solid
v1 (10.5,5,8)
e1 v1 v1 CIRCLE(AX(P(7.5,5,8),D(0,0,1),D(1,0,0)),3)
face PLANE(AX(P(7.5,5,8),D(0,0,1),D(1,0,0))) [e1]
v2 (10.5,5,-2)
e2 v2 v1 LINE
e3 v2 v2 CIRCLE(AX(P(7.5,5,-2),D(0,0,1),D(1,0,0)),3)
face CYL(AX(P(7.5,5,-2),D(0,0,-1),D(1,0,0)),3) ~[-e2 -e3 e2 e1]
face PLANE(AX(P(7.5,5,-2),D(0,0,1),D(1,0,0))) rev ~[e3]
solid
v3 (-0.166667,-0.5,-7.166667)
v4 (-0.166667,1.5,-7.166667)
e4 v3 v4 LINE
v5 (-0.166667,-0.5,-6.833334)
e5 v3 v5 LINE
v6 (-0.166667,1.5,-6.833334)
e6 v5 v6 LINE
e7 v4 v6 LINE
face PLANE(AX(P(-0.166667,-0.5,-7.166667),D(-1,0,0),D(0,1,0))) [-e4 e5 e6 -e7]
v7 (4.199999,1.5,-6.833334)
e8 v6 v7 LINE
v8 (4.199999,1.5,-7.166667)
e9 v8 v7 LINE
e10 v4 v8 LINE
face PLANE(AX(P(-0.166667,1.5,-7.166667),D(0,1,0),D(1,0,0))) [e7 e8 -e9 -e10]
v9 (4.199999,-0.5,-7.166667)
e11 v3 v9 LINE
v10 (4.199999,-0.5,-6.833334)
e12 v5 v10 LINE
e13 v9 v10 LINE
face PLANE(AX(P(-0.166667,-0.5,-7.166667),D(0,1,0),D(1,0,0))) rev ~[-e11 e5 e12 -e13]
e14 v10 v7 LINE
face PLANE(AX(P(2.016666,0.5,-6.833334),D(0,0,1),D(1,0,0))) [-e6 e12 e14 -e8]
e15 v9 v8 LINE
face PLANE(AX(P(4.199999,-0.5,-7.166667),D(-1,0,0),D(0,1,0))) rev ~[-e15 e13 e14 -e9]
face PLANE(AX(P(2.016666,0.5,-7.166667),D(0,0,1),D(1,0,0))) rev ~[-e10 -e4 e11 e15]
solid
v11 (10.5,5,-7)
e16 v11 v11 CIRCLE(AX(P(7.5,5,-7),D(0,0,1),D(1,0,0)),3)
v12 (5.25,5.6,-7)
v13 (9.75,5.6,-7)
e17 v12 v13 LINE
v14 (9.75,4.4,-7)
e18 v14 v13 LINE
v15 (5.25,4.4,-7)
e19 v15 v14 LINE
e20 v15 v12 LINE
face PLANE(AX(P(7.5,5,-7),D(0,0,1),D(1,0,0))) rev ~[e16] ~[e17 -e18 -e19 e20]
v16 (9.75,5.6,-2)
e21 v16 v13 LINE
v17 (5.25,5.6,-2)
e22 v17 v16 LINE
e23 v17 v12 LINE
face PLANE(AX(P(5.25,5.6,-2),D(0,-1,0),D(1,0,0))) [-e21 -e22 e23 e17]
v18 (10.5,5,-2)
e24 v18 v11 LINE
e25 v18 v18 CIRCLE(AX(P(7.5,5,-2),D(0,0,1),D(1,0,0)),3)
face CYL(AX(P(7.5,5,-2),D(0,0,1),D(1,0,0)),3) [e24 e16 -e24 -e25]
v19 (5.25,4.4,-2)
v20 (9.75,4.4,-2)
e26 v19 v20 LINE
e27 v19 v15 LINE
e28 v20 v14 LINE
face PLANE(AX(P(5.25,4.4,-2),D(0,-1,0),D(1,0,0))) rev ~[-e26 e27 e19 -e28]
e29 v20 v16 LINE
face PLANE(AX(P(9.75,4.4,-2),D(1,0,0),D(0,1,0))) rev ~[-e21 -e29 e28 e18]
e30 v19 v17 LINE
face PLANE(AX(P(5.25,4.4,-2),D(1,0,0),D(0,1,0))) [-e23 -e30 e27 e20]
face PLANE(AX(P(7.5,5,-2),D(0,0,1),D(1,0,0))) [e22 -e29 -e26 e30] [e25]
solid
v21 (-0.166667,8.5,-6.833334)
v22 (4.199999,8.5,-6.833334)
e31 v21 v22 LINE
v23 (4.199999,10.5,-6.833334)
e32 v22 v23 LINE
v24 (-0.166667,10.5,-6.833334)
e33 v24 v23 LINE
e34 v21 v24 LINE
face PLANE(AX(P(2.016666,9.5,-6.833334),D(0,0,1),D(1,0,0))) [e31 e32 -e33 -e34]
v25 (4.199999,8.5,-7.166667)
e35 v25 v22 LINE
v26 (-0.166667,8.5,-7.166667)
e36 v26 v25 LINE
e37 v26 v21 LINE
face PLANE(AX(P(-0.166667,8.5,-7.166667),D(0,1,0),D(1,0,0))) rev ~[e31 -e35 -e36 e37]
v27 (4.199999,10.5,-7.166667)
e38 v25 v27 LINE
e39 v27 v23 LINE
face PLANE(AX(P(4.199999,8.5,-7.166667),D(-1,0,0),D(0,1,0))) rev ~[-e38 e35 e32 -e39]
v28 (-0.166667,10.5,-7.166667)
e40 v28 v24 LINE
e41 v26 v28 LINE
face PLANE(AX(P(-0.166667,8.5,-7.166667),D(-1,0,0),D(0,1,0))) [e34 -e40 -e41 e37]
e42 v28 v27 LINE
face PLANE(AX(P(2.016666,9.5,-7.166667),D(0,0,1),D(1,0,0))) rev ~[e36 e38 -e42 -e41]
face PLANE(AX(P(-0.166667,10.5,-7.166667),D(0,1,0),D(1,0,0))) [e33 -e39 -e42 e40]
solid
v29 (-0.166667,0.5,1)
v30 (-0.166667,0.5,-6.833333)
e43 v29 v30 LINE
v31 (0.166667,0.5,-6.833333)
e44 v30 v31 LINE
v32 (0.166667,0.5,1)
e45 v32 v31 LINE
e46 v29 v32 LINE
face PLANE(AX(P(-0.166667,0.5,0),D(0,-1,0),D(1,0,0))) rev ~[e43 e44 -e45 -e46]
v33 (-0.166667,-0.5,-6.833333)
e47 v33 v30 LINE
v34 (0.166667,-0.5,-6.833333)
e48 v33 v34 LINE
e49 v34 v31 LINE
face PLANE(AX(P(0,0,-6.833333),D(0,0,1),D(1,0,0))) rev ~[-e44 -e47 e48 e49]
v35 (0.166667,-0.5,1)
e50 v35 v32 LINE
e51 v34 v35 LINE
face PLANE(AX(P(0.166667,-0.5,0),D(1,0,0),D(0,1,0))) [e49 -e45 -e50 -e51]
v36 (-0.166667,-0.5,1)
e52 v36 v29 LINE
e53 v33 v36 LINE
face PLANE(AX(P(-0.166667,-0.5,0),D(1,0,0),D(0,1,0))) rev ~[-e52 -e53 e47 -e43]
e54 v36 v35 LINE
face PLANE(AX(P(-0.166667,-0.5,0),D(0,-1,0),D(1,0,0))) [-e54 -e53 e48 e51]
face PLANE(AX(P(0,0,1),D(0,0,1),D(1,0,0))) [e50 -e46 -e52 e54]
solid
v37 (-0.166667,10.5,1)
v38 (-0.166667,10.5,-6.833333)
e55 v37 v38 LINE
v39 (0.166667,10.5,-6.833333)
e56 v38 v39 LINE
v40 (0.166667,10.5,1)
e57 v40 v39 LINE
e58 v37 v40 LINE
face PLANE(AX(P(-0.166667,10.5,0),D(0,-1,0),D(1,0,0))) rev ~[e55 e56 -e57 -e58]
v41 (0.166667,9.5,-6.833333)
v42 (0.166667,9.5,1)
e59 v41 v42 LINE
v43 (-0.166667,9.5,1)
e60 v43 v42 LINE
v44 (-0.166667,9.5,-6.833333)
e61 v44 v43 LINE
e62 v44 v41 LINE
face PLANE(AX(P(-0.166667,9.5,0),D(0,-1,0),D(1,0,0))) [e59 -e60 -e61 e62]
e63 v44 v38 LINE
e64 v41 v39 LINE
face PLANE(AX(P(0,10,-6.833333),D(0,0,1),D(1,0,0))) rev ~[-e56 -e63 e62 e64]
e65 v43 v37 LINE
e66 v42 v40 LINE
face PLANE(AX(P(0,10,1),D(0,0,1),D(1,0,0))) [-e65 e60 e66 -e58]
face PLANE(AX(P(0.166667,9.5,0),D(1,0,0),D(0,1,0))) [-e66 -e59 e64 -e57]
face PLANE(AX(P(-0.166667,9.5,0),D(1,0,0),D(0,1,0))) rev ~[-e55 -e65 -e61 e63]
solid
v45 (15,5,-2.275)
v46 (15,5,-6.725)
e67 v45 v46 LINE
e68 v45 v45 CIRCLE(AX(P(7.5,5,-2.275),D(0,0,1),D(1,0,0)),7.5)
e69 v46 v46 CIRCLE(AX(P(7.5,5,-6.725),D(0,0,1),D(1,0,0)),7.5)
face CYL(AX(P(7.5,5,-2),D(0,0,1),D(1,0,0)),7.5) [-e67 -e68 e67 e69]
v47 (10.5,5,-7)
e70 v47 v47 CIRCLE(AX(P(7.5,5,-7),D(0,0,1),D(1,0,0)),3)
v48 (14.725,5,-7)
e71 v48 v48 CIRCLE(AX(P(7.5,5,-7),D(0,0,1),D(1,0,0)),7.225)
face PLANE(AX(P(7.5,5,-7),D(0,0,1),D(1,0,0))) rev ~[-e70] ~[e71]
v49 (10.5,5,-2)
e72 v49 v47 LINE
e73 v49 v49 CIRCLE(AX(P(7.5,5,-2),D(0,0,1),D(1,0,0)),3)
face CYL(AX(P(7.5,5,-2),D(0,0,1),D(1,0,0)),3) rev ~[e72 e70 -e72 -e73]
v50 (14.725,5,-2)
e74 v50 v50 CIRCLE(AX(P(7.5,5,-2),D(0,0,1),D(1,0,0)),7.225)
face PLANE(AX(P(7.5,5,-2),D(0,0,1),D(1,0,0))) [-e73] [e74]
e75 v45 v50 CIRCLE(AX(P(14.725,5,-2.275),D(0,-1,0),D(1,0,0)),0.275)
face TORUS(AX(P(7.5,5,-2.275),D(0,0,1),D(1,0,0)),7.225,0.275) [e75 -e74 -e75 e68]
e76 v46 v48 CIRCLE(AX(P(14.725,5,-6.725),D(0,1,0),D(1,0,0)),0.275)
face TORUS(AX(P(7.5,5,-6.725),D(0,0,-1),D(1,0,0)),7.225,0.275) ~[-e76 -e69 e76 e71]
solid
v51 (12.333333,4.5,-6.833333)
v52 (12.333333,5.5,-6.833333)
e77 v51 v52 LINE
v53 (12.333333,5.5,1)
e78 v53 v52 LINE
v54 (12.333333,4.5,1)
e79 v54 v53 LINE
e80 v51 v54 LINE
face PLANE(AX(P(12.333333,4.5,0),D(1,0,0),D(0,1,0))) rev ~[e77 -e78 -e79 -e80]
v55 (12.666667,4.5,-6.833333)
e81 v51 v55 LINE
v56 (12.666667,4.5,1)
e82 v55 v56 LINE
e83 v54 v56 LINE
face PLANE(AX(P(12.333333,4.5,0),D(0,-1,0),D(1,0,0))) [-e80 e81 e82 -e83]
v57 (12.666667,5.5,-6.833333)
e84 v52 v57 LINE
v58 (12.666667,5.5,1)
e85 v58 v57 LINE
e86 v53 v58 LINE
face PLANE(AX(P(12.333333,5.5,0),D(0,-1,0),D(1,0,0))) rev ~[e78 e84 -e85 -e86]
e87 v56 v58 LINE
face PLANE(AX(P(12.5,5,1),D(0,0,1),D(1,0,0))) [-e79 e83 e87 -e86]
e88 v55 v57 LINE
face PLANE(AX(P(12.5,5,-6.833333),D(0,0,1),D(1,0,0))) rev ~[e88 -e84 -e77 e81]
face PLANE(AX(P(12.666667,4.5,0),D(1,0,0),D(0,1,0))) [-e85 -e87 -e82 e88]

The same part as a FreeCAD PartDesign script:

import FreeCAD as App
import Part
import Sketcher
Q = App.Units.Quantity


def edges_at(feature, points):
    """Names of the edges that pass closest to the given points."""
    edges = feature.Shape.Edges
    near = lambda p: min(range(len(edges)), key=lambda i: edges[i].distToShape(Part.Vertex(*p))[0])
    return sorted({f"Edge{near(p) + 1}" for p in points})


def add_polygon(sketch, points):
    """Adds a closed chain of lines whose ends are joined by coincident constraints."""
    first, n = sketch.GeometryCount, len(points)
    for a, b in zip(points, points[1:] + points[:1]):
        sketch.addGeometry(Part.LineSegment(App.Vector(*a, 0), App.Vector(*b, 0)), False)
    for i in range(n):
        sketch.addConstraint(Sketcher.Constraint("Coincident", first + i, 2, first + (i + 1) % n, 1))

doc = App.newDocument("Part")
body = doc.addObject("PartDesign::Body", "Body")
body.AllowCompound = True

# Sketch on XY plane
sketch1 = body.newObject("Sketcher::SketchObject", "Sketch")
sketch1.AttachmentSupport = (doc.getObject("XY_Plane"), [""])
sketch1.MapMode = "FlatFace"
add_polygon(sketch1, [(-0.17, 10.5), (-0.17, 9.5), (0.17, 9.5), (0.17, 10.5)])  # lines 0-3
add_polygon(sketch1, [(12.33, 5.5), (12.33, 4.5), (12.67, 4.5), (12.67, 5.5)])  # lines 4-7
add_polygon(sketch1, [(-0.17, 0.5), (-0.17, -0.5), (0.17, -0.5), (0.17, 0.5)])  # lines 8-11
sketch1.addConstraint([
    Sketcher.Constraint("Vertical", 0),
    Sketcher.Constraint("Horizontal", 1),
    Sketcher.Constraint("Vertical", 2),
    Sketcher.Constraint("Horizontal", 3),
    Sketcher.Constraint("Vertical", 4),
    Sketcher.Constraint("Horizontal", 5),
    Sketcher.Constraint("Vertical", 6),
    Sketcher.Constraint("Horizontal", 7),
    Sketcher.Constraint("Vertical", 8),
    Sketcher.Constraint("Horizontal", 9),
    Sketcher.Constraint("Vertical", 10),
    Sketcher.Constraint("Horizontal", 11),
    Sketcher.Constraint("Symmetric", 8, 2, 10, 2, -1, 1),
    Sketcher.Constraint("Vertical", 3, 2, 8, 2),
    Sketcher.Constraint("Vertical", 2, 2, 9, 2),
    Sketcher.Constraint("Equal", 3, 5),
    Sketcher.Constraint("Equal", 2, 4),
    Sketcher.Constraint("Equal", 6, 8),
    Sketcher.Constraint("DistanceY", 0, 2, 0, 1, Q("1 mm")),
    Sketcher.Constraint("DistanceY", 4, 2, 1, 2, Q("5 mm")),
    Sketcher.Constraint("DistanceY", 8, 2, 0, 2, Q("10 mm")),
    Sketcher.Constraint("DistanceX", 0, 2, 4, 2, Q("12.5 mm")),
    Sketcher.Constraint("DistanceX", 1, 1, 1, 2, Q("0.333334 mm")),
])
pad1 = body.newObject("PartDesign::Pad", "Pad")
pad1.Profile = sketch1
pad1.Type = "TwoLengths"
pad1.Length = 1
pad1.Length2 = 6.833333
body2 = doc.addObject("PartDesign::Body", "Body001")

# Sketch on XY plane
sketch2 = body2.newObject("Sketcher::SketchObject", "Sketch001")
sketch2.AttachmentSupport = (doc.getObject("XY_Plane001"), [""])
sketch2.MapMode = "FlatFace"
sketch2.AttachmentOffset = App.Placement(App.Vector(0, 0, -2), App.Rotation())
sketch2.addGeometry(Part.Circle(App.Vector(7.5, 5, 0), App.Vector(0, 0, 1), 3), False)  # 0
add_polygon(sketch2, [(9.8, 4.4), (5.2, 4.4), (5.2, 5.6), (9.8, 5.6)])  # lines 1-4
sketch2.addConstraint([
    Sketcher.Constraint("Horizontal", 1),
    Sketcher.Constraint("Vertical", 2),
    Sketcher.Constraint("Horizontal", 3),
    Sketcher.Constraint("Vertical", 4),
    Sketcher.Constraint("Diameter", 0, Q("6 mm")),
    Sketcher.Constraint("DistanceX", 1, 2, 1, 1, Q("4.5 mm")),
    Sketcher.Constraint("DistanceY", 2, 1, 2, 2, Q("1.2 mm")),
    Sketcher.Constraint("DistanceY", -1, 1, 0, 3, Q("5 mm")),
    Sketcher.Constraint("DistanceX", -1, 1, 0, 3, Q("7.5 mm")),
    Sketcher.Constraint("DistanceY", -1, 1, 1, 2, Q("4.4 mm")),
    Sketcher.Constraint("DistanceX", -1, 1, 1, 2, Q("5.25 mm")),
])
pad2 = body2.newObject("PartDesign::Pad", "Pad001")
pad2.Profile = sketch2
pad2.Length = 5
pad2.Reversed = True
body3 = doc.addObject("PartDesign::Body", "Body002")

# Sketch on XY plane
sketch3 = body3.newObject("Sketcher::SketchObject", "Sketch002")
sketch3.AttachmentSupport = (doc.getObject("XY_Plane002"), [""])
sketch3.MapMode = "FlatFace"
sketch3.AttachmentOffset = App.Placement(App.Vector(0, 0, -2), App.Rotation())
sketch3.addGeometry([
    Part.Circle(App.Vector(7.5, 5, 0), App.Vector(0, 0, 1), 7.5),
    Part.Circle(App.Vector(7.5, 5, 0), App.Vector(0, 0, 1), 3),
], False)
sketch3.addConstraint([
    Sketcher.Constraint("Coincident", 1, 3, 0, 3),
    Sketcher.Constraint("Diameter", 0, Q("15 mm")),
    Sketcher.Constraint("Diameter", 1, Q("6 mm")),
    Sketcher.Constraint("DistanceY", -1, 1, 0, 3, Q("5 mm")),
    Sketcher.Constraint("DistanceX", -1, 1, 0, 3, Q("7.5 mm")),
])
pad3 = body3.newObject("PartDesign::Pad", "Pad002")
pad3.Profile = sketch3
pad3.Length = 5
pad3.Reversed = True
doc.recompute()

fillet = body3.newObject("PartDesign::Fillet", "Fillet")
fillet.Base = (pad3, edges_at(pad3, [(0, 5, -2), (0, 5, -7)]))
fillet.Radius = 0.275
body4 = doc.addObject("PartDesign::Body", "Body003")
body4.AllowCompound = True

# Sketch on XY plane
sketch4 = body4.newObject("Sketcher::SketchObject", "Sketch003")
sketch4.AttachmentSupport = (doc.getObject("XY_Plane003"), [""])
sketch4.MapMode = "FlatFace"
sketch4.AttachmentOffset = App.Placement(App.Vector(0, 0, -7.166667), App.Rotation())
add_polygon(sketch4, [(-0.2, 10.5), (-0.2, 8.5), (4.2, 8.5), (4.2, 10.5)])  # lines 0-3
add_polygon(sketch4, [(-0.2, 1.5), (-0.2, -0.5), (4.2, -0.5), (4.2, 1.5)])  # lines 4-7
sketch4.addConstraint([
    Sketcher.Constraint("Vertical", 0),
    Sketcher.Constraint("Horizontal", 1),
    Sketcher.Constraint("Vertical", 2),
    Sketcher.Constraint("Horizontal", 3),
    Sketcher.Constraint("Vertical", 4),
    Sketcher.Constraint("Horizontal", 5),
    Sketcher.Constraint("Vertical", 6),
    Sketcher.Constraint("Horizontal", 7),
    Sketcher.Constraint("Vertical", 3, 2, 4, 2),
    Sketcher.Constraint("Vertical", 2, 2, 5, 2),
    Sketcher.Constraint("Equal", 2, 4),
    Sketcher.Constraint("DistanceY", 0, 2, 0, 1, Q("2 mm")),
    Sketcher.Constraint("DistanceY", 4, 2, 0, 2, Q("9 mm")),
    Sketcher.Constraint("DistanceY", -1, 1, 0, 2, Q("8.5 mm")),
    Sketcher.Constraint("DistanceX", -1, 1, 1, 2, Q("4.199999 mm")),
    Sketcher.Constraint("DistanceX", 1, 1, 1, 2, Q("4.366667 mm")),
])
pad4 = body4.newObject("PartDesign::Pad", "Pad003")
pad4.Profile = sketch4
pad4.Length = 0.333333
body5 = doc.addObject("PartDesign::Body", "Body004")

# Sketch on XY plane
sketch5 = body5.newObject("Sketcher::SketchObject", "Sketch004")
sketch5.AttachmentSupport = (doc.getObject("XY_Plane004"), [""])
sketch5.MapMode = "FlatFace"
sketch5.AttachmentOffset = App.Placement(App.Vector(0, 0, -2), App.Rotation())
sketch5.addGeometry(Part.Circle(App.Vector(7.5, 5, 0), App.Vector(0, 0, 1), 3), False)
sketch5.addConstraint([
    Sketcher.Constraint("Diameter", 0, Q("6 mm")),
    Sketcher.Constraint("DistanceY", -1, 1, 0, 3, Q("5 mm")),
    Sketcher.Constraint("DistanceX", -1, 1, 0, 3, Q("7.5 mm")),
])
pad5 = body5.newObject("PartDesign::Pad", "Pad004")
pad5.Profile = sketch5
pad5.Length = 10

doc.recompute()
